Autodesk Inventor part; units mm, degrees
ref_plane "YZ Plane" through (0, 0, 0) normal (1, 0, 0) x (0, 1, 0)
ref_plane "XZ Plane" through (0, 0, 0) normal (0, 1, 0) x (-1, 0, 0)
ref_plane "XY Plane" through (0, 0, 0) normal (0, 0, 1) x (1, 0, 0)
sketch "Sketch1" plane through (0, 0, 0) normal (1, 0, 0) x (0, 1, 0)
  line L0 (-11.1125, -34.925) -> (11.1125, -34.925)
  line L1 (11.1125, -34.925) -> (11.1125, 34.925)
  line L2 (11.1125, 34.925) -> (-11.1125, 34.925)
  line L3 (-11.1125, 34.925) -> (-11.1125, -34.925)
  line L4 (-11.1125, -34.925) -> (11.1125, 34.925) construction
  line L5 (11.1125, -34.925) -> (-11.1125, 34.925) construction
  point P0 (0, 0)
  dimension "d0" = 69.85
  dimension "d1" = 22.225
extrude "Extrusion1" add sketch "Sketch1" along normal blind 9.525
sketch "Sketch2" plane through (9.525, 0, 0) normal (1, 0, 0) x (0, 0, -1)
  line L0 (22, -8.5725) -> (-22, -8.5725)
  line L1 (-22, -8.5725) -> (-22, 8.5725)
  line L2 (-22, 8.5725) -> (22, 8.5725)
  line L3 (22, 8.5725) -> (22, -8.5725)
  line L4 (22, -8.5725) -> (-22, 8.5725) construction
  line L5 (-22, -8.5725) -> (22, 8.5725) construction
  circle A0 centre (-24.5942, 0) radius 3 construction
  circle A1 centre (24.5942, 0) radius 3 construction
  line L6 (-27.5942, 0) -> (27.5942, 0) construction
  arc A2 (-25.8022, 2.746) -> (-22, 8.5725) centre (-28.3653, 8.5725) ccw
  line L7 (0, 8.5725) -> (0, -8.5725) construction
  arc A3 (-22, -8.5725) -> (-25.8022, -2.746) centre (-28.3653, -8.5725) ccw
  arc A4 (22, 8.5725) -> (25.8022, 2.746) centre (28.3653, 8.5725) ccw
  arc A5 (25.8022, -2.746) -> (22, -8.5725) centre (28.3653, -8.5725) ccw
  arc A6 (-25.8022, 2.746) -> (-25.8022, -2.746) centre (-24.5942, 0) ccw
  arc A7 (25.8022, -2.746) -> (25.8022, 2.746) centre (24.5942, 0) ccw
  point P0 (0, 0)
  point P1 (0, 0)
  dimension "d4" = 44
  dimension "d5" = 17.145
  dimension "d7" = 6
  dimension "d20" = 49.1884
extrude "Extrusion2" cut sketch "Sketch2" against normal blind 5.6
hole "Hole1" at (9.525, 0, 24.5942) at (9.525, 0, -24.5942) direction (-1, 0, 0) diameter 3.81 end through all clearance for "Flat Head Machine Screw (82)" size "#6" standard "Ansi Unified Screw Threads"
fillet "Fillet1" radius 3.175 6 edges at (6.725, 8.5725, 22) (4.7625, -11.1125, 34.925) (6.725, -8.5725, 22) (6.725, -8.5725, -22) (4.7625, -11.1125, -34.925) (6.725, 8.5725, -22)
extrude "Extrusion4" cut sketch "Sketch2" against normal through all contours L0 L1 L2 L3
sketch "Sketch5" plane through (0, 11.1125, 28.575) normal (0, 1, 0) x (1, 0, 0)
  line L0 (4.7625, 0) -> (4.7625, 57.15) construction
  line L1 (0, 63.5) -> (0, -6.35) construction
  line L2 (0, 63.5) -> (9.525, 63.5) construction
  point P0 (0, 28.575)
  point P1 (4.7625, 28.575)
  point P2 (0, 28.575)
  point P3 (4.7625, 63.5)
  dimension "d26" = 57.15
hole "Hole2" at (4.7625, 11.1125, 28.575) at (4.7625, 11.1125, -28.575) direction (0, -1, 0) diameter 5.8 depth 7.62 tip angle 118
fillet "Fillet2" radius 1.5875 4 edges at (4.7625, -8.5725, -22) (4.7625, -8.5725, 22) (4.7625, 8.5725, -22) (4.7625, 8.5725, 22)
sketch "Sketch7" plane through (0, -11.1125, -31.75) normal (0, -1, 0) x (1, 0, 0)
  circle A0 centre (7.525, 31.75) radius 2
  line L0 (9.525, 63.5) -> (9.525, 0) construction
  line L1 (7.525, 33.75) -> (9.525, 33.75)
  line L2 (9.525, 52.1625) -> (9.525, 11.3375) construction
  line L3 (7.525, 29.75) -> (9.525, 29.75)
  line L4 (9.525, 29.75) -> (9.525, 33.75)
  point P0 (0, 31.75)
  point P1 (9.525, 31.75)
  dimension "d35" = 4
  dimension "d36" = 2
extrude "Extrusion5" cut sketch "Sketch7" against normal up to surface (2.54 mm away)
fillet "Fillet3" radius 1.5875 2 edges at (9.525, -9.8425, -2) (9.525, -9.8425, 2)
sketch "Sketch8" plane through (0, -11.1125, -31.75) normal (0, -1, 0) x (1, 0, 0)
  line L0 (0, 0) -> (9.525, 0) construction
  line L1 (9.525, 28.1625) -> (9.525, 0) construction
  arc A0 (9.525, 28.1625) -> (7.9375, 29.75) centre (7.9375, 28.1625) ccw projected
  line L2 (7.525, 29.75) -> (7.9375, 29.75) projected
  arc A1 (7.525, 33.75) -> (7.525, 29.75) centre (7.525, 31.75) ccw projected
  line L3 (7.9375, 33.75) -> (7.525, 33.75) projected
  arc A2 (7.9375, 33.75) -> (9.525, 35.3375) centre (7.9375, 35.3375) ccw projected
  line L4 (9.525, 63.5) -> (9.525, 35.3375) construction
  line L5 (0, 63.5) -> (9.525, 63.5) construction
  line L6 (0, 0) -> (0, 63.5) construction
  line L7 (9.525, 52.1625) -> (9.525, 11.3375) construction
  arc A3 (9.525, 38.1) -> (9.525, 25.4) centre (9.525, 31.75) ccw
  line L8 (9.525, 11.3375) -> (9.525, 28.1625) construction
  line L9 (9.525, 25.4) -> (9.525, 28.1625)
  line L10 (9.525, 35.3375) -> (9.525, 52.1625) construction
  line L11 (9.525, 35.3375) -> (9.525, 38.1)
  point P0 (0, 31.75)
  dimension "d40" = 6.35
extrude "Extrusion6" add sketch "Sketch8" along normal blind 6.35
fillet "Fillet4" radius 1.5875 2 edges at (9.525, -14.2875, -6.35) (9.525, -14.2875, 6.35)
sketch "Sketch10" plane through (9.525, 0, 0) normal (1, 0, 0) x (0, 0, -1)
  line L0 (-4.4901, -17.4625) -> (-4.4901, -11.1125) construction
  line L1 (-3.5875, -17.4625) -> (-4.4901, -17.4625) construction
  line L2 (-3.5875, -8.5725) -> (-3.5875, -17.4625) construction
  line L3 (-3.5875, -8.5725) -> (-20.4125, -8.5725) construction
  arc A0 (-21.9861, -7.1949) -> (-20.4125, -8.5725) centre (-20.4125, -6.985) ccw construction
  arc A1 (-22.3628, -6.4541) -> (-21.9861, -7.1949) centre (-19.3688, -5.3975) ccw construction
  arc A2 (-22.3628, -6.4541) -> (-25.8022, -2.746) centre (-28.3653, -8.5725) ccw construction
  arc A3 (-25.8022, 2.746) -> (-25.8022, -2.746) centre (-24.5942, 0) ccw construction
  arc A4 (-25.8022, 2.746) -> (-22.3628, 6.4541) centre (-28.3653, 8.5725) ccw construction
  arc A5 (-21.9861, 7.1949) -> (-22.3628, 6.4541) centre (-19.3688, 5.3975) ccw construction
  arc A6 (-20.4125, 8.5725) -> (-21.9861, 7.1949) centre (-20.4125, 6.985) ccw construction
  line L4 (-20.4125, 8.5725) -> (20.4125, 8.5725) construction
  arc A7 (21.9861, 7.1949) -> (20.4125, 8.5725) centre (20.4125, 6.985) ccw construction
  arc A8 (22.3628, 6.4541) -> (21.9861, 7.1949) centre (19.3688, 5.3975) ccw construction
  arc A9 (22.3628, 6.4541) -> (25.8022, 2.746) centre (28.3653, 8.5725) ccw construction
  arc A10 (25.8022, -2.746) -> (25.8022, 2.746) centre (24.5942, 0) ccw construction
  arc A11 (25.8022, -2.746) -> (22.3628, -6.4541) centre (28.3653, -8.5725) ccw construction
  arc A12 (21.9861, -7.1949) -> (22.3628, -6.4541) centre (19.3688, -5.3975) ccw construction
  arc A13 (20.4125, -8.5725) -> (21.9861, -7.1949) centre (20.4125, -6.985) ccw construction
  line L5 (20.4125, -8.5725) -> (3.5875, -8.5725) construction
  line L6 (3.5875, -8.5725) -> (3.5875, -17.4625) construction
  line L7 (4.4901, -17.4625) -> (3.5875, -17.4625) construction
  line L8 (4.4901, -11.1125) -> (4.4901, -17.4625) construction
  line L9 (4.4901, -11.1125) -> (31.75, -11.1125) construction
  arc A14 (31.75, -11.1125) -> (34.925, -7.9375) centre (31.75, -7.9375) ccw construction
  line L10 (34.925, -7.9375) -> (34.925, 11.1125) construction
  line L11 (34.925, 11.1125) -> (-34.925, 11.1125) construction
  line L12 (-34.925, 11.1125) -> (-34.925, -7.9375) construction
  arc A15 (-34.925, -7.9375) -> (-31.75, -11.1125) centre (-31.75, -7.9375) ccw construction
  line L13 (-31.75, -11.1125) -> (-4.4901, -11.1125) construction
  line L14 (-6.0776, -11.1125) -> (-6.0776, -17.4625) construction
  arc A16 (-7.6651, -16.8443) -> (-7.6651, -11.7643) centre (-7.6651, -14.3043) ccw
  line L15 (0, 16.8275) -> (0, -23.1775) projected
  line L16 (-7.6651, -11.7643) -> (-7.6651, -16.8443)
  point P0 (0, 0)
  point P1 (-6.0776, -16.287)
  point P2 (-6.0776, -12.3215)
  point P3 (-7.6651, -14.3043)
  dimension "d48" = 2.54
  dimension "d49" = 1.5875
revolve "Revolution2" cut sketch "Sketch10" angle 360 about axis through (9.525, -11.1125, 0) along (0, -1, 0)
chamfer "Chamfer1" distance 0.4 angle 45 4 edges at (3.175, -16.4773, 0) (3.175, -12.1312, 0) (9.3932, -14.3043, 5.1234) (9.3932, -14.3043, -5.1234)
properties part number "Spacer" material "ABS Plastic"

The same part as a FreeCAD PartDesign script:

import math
import FreeCAD as App
import Part
import Sketcher
from FreeCAD import Vector
Q = App.Units.Quantity


def edges_at(feature, points):
    """Names of the edges that pass closest to the given points."""
    edges = feature.Shape.Edges
    near = lambda p: min(range(len(edges)), key=lambda i: edges[i].distToShape(Part.Vertex(*p))[0])
    return sorted({f"Edge{near(p) + 1}" for p in points})


def add_polygon(sketch, points):
    """Adds a closed chain of lines whose ends are joined by coincident constraints."""
    first, n = sketch.GeometryCount, len(points)
    for a, b in zip(points, points[1:] + points[:1]):
        sketch.addGeometry(Part.LineSegment(App.Vector(*a, 0), App.Vector(*b, 0)), False)
    for i in range(n):
        sketch.addConstraint(Sketcher.Constraint("Coincident", first + i, 2, first + (i + 1) % n, 1))

doc = App.newDocument("Part")
body = doc.addObject("PartDesign::Body", "Body")

sketch1 = body.newObject("Sketcher::SketchObject", "Sketch")
sketch1.AttachmentSupport = (doc.getObject("YZ_Plane"), [""])
sketch1.MapMode = "FlatFace"
add_polygon(sketch1, [(-11, 35), (-11, -35), (11, -35), (11, 35)])
sketch1.addConstraint([
    Sketcher.Constraint("Vertical", 0),
    Sketcher.Constraint("Horizontal", 1),
    Sketcher.Constraint("Vertical", 2),
    Sketcher.Constraint("Horizontal", 3),
    Sketcher.Constraint("Symmetric", 0, 2, 2, 2, -1, 1),
    Sketcher.Constraint("DistanceY", 0, 2, 0, 1, Q("2.75 in")),
    Sketcher.Constraint("DistanceX", 1, 1, 1, 2, Q("0.875 in")),
])
pad1 = body.newObject("PartDesign::Pad", "Pad")
pad1.Profile = sketch1
pad1.Length = Q("0.375 in")

sketch2 = body.newObject("Sketcher::SketchObject", "Sketch001")
sketch2.AttachmentSupport = (doc.getObject("YZ_Plane"), [""])
sketch2.MapMode = "FlatFace"
sketch2.AttachmentOffset = App.Placement(Vector(0, 0, 0.375 * 25.4), App.Rotation())
sketch2.addGeometry([
    Part.LineSegment(Vector(-8.6, 22, 0), Vector(-8.6, -22, 0)),
    Part.ArcOfCircle(Part.Circle(Vector(-8.6, -28.4, 0), Vector(0, 0, 1), 6.4), math.radians(24), math.radians(90)),
    Part.ArcOfCircle(Part.Circle(Vector(0, -24.6, 0), Vector(0, 0, 1), 3), math.radians(-156), math.radians(-24)),
    Part.ArcOfCircle(Part.Circle(Vector(8.6, -28.4, 0), Vector(0, 0, 1), 6.4), math.radians(90), math.radians(156)),
    Part.LineSegment(Vector(8.6, -22, 0), Vector(8.6, 22, 0)),
    Part.ArcOfCircle(Part.Circle(Vector(8.6, 28.4, 0), Vector(0, 0, 1), 6.4), math.radians(-156), math.radians(-90)),
    Part.ArcOfCircle(Part.Circle(Vector(0, 24.6, 0), Vector(0, 0, 1), 3), math.radians(24), math.radians(156)),
    Part.ArcOfCircle(Part.Circle(Vector(-8.6, 28.4, 0), Vector(0, 0, 1), 6.4), math.radians(-90), math.radians(-24)),
], False)
sketch2.addConstraint([
    Sketcher.Constraint("Coincident", 0, 2, 1, 2),
    Sketcher.Constraint("Tangent", 1, 1, 2, 1),
    Sketcher.Constraint("Tangent", 2, 2, 3, 2),
    Sketcher.Constraint("Coincident", 3, 1, 4, 1),
    Sketcher.Constraint("Coincident", 4, 2, 5, 2),
    Sketcher.Constraint("Tangent", 5, 1, 6, 1),
    Sketcher.Constraint("Tangent", 6, 2, 7, 2),
    Sketcher.Constraint("Coincident", 7, 1, 0, 1),
    Sketcher.Constraint("Vertical", 0),
    Sketcher.Constraint("Vertical", 4),
    Sketcher.Constraint("Equal", 1, 3),
    Sketcher.Constraint("Equal", 3, 5),
    Sketcher.Constraint("Equal", 2, 6),
    Sketcher.Constraint("Equal", 5, 7),
    Sketcher.Constraint("Symmetric", 1, 3, 5, 3, -1, 1),
    Sketcher.Constraint("Symmetric", 3, 3, 7, 3, -1, 1),
    Sketcher.Constraint("Symmetric", 1, 3, 3, 3, -2),
    Sketcher.Constraint("Vertical", 7, 3, 0, 2),
    Sketcher.Constraint("Vertical", 5, 3, 3, 1),
    Sketcher.Constraint("Radius", 2, Q("0.1181 in")),
    Sketcher.Constraint("DistanceX", 1, 3, 3, 3, Q("0.675 in")),
    Sketcher.Constraint("DistanceY", 0, 2, 0, 1, Q("44 mm")),
    Sketcher.Constraint("Radius", 1, Q("0.2506 in")),
])
pocket1 = body.newObject("PartDesign::Pocket", "Pocket")
pocket1.Profile = sketch2
pocket1.Length = 5.6

sketch3 = body.newObject("Sketcher::SketchObject", "Sketch002")
sketch3.AttachmentSupport = (doc.getObject("YZ_Plane"), [""])
sketch3.MapMode = "FlatFace"
sketch3.AttachmentOffset = App.Placement(Vector(0, 0, 0.375 * 25.4), App.Rotation())
sketch3.addGeometry([
    Part.Circle(Vector(0, 24.6, 0), Vector(0, 0, 1), 1.9),
    Part.Circle(Vector(0, -24.6, 0), Vector(0, 0, 1), 1.9),
], False)
sketch3.addConstraint([
    Sketcher.Constraint("Equal", 0, 1),
    Sketcher.Constraint("Symmetric", 0, 3, 1, 3, -1, 1),
    Sketcher.Constraint("PointOnObject", 0, 3, -2),
    Sketcher.Constraint("Diameter", 0, Q("0.15 in")),
    Sketcher.Constraint("DistanceY", -1, 1, 0, 3, Q("24.5942 mm")),
])
doc.recompute()
hole = body.newObject("PartDesign::Hole", "Hole")
hole.Profile = sketch3
hole.ThreadType = "None"
hole.Diameter = Q("0.15 in")
hole.DepthType = "ThroughAll"
doc.recompute()

fillet = body.newObject("PartDesign::Fillet", "Fillet")
fillet.Base = (hole, edges_at(hole, [
    (6.725, 8.572, 22),
    (4.763, -11.113, 34.925),
    (6.725, -8.572, 22),
    (6.725, -8.572, -22),
    (4.763, -11.113, -34.925),
    (6.725, 8.572, -22),
]))
fillet.Radius = Q("0.125 in")

sketch4 = body.newObject("Sketcher::SketchObject", "Sketch003")
sketch4.AttachmentSupport = (doc.getObject("YZ_Plane"), [""])
sketch4.MapMode = "FlatFace"
sketch4.AttachmentOffset = App.Placement(Vector(0, 0, 0.375 * 25.4), App.Rotation())
add_polygon(sketch4, [(-9, 22), (-9, -22), (9, -22), (9, 22)])
sketch4.addConstraint([
    Sketcher.Constraint("Vertical", 0),
    Sketcher.Constraint("Horizontal", 1),
    Sketcher.Constraint("Vertical", 2),
    Sketcher.Constraint("Horizontal", 3),
    Sketcher.Constraint("Symmetric", 0, 2, 2, 2, -1, 1),
    Sketcher.Constraint("DistanceX", 1, 1, 1, 2, Q("0.675 in")),
    Sketcher.Constraint("DistanceY", 0, 2, 0, 1, Q("44 mm")),
])
pocket2 = body.newObject("PartDesign::Pocket", "Pocket001")
pocket2.Profile = sketch4
pocket2.Type = "ThroughAll"

sketch5 = body.newObject("Sketcher::SketchObject", "Sketch004")
sketch5.AttachmentSupport = (doc.getObject("XZ_Plane"), [""])
sketch5.MapMode = "FlatFace"
sketch5.AttachmentOffset = App.Placement(Vector(0, 0, -0.4375 * 25.4), App.Rotation())
sketch5.addGeometry([
    Part.Circle(Vector(4.8, 28.6, 0), Vector(0, 0, 1), 2.9),
    Part.Circle(Vector(4.8, -28.6, 0), Vector(0, 0, 1), 2.9),
], False)
sketch5.addConstraint([
    Sketcher.Constraint("Equal", 0, 1),
    Sketcher.Constraint("Symmetric", 0, 3, 1, 3, -1),
    Sketcher.Constraint("Diameter", 0, Q("5.8 mm")),
    Sketcher.Constraint("DistanceY", 1, 3, 0, 3, Q("2.25 in")),
    Sketcher.Constraint("DistanceX", -1, 1, 0, 3, Q("0.1875 in")),
])
doc.recompute()
hole2 = body.newObject("PartDesign::Hole", "Hole001")
hole2.Profile = sketch5
hole2.ThreadType = "None"
hole2.Diameter = 5.8
hole2.DepthType = "Dimension"
hole2.Depth = Q("0.3 in")
hole2.DrillPoint = "Angled"
hole2.DrillPointAngle = 118
hole2.Reversed = True
doc.recompute()

fillet2 = body.newObject("PartDesign::Fillet", "Fillet001")
fillet2.Base = (hole2, edges_at(hole2, [
    (4.763, -8.572, -22),
    (4.763, -8.572, 22),
    (4.763, 8.572, -22),
    (4.763, 8.572, 22),
]))
fillet2.Radius = Q("0.0625 in")

sketch6 = body.newObject("Sketcher::SketchObject", "Sketch005")
sketch6.AttachmentSupport = (doc.getObject("XZ_Plane"), [""])
sketch6.MapMode = "FlatFace"
sketch6.AttachmentOffset = App.Placement(Vector(0, 0, 0.4375 * 25.4), App.Rotation())
sketch6.addGeometry([
    Part.ArcOfCircle(Part.Circle(Vector(7.5, 0, 0), Vector(0, 0, 1), 2), math.radians(90), math.radians(270)),
    Part.LineSegment(Vector(7.5, -2, 0), Vector(9.5, -2, 0)),
    Part.LineSegment(Vector(9.5, -2, 0), Vector(9.5, 2, 0)),
    Part.LineSegment(Vector(9.5, 2, 0), Vector(7.5, 2, 0)),
], False)
sketch6.addConstraint([
    Sketcher.Constraint("Tangent", 0, 2, 1, 1),
    Sketcher.Constraint("Coincident", 1, 2, 2, 1),
    Sketcher.Constraint("Coincident", 2, 2, 3, 1),
    Sketcher.Constraint("Tangent", 3, 2, 0, 1),
    Sketcher.Constraint("Horizontal", 1),
    Sketcher.Constraint("Vertical", 2),
    Sketcher.Constraint("Horizontal", 3),
    Sketcher.Constraint("PointOnObject", 0, 3, -1),
    Sketcher.Constraint("Radius", 0, Q("2 mm")),
    Sketcher.Constraint("DistanceX", 1, 1, 1, 2, Q("2 mm")),
    Sketcher.Constraint("DistanceX", -1, 1, 1, 2, Q("0.375 in")),
])
pocket3 = body.newObject("PartDesign::Pocket", "Pocket002")
pocket3.Profile = sketch6
pocket3.Length = Q("0.1 in")
doc.recompute()

fillet3 = body.newObject("PartDesign::Fillet", "Fillet002")
fillet3.Base = (pocket3, edges_at(pocket3, [(9.525, -9.842, -2), (9.525, -9.842, 2)]))
fillet3.Radius = Q("0.0625 in")

sketch7 = body.newObject("Sketcher::SketchObject", "Sketch006")
sketch7.AttachmentSupport = (doc.getObject("XZ_Plane"), [""])
sketch7.MapMode = "FlatFace"
sketch7.AttachmentOffset = App.Placement(Vector(0, 0, 0.4375 * 25.4), App.Rotation())
sketch7.addGeometry([
    Part.LineSegment(Vector(9.53, -6.35, 0), Vector(9.53, -3.59, 0)),
    Part.ArcOfCircle(Part.Circle(Vector(7.94, -3.59, 0), Vector(0, 0, 1), 1.59), math.radians(0), math.radians(90)),
    Part.LineSegment(Vector(7.94, -2, 0), Vector(7.53, -2, 0)),
    Part.ArcOfCircle(Part.Circle(Vector(7.53, 0, 0), Vector(0, 0, 1), 2), math.radians(90), math.radians(270)),
    Part.LineSegment(Vector(7.53, 2, 0), Vector(7.94, 2, 0)),
    Part.ArcOfCircle(Part.Circle(Vector(7.94, 3.59, 0), Vector(0, 0, 1), 1.59), math.radians(-90), math.radians(0)),
    Part.LineSegment(Vector(9.53, 3.59, 0), Vector(9.53, 6.35, 0)),
    Part.ArcOfCircle(Part.Circle(Vector(9.53, 0, 0), Vector(0, 0, 1), 6.35), math.radians(90), math.radians(270)),
], False)
sketch7.addConstraint([
    Sketcher.Constraint("Tangent", 0, 2, 1, 1),
    Sketcher.Constraint("Tangent", 1, 2, 2, 1),
    Sketcher.Constraint("Tangent", 2, 2, 3, 2),
    Sketcher.Constraint("Tangent", 3, 1, 4, 1),
    Sketcher.Constraint("Tangent", 4, 2, 5, 1),
    Sketcher.Constraint("Tangent", 5, 2, 6, 1),
    Sketcher.Constraint("Coincident", 6, 2, 7, 1),
    Sketcher.Constraint("Coincident", 7, 2, 0, 1),
    Sketcher.Constraint("Vertical", 0),
    Sketcher.Constraint("Horizontal", 2),
    Sketcher.Constraint("Horizontal", 4),
    Sketcher.Constraint("Vertical", 6),
    Sketcher.Constraint("Equal", 1, 5),
    Sketcher.Constraint("Symmetric", 1, 3, 5, 3, -1),
    Sketcher.Constraint("PointOnObject", 7, 3, -1),
    Sketcher.Constraint("Vertical", 7, 3, 0, 2),
    Sketcher.Constraint("Radius", 7, Q("0.25 in")),
    Sketcher.Constraint("Radius", 1, Q("0.0625 in")),
    Sketcher.Constraint("Radius", 3, Q("2 mm")),
    Sketcher.Constraint("DistanceX", -1, 1, 1, 3, Q("0.3125 in")),
    Sketcher.Constraint("DistanceX", 2, 2, 2, 1, Q("0.4125 mm")),
])
pad2 = body.newObject("PartDesign::Pad", "Pad001")
pad2.Profile = sketch7
pad2.Length = Q("0.25 in")
doc.recompute()

fillet4 = body.newObject("PartDesign::Fillet", "Fillet003")
fillet4.Base = (pad2, edges_at(pad2, [(9.525, -14.287, -6.35), (9.525, -14.287, 6.35)]))
fillet4.Radius = Q("0.0625 in")

sketch8 = body.newObject("Sketcher::SketchObject", "Sketch007")
sketch8.AttachmentSupport = (doc.getObject("YZ_Plane"), [""])
sketch8.MapMode = "FlatFace"
sketch8.AttachmentOffset = App.Placement(Vector(0, 0, 0.375 * 25.4), App.Rotation())
sketch8.addGeometry([
    Part.LineSegment(Vector(-11.8, 7.7, 0), Vector(-16.8, 7.7, 0)),
    Part.ArcOfCircle(Part.Circle(Vector(-14.3, 7.7, 0), Vector(0, 0, 1), 2.5), math.radians(180), math.radians(360)),
], False)
sketch8.addConstraint([
    Sketcher.Constraint("Coincident", 0, 1, 1, 2),
    Sketcher.Constraint("Coincident", 1, 1, 0, 2),
    Sketcher.Constraint("Horizontal", 0),
    Sketcher.Constraint("Horizontal", 1, 3, 0, 1),
    Sketcher.Constraint("Radius", 1, Q("0.1 in")),
    Sketcher.Constraint("DistanceX", 1, 3, -1, 1, Q("14.3043 mm")),
    Sketcher.Constraint("DistanceY", -1, 1, 1, 3, Q("7.665 mm")),
])
groove = body.newObject("PartDesign::Groove", "Groove")
groove.Profile = sketch8
groove.ReferenceAxis = (sketch8, ["H_Axis"])
groove.Angle = 360
doc.recompute()

chamfer = body.newObject("PartDesign::Chamfer", "Chamfer")
chamfer.Base = (groove, edges_at(groove, [
    (3.175, -16.477, 0),
    (3.175, -12.131, 0),
    (9.393, -14.304, 5.123),
    (9.393, -14.304, -5.123),
]))
chamfer.Size = 0.4

doc.recompute()
